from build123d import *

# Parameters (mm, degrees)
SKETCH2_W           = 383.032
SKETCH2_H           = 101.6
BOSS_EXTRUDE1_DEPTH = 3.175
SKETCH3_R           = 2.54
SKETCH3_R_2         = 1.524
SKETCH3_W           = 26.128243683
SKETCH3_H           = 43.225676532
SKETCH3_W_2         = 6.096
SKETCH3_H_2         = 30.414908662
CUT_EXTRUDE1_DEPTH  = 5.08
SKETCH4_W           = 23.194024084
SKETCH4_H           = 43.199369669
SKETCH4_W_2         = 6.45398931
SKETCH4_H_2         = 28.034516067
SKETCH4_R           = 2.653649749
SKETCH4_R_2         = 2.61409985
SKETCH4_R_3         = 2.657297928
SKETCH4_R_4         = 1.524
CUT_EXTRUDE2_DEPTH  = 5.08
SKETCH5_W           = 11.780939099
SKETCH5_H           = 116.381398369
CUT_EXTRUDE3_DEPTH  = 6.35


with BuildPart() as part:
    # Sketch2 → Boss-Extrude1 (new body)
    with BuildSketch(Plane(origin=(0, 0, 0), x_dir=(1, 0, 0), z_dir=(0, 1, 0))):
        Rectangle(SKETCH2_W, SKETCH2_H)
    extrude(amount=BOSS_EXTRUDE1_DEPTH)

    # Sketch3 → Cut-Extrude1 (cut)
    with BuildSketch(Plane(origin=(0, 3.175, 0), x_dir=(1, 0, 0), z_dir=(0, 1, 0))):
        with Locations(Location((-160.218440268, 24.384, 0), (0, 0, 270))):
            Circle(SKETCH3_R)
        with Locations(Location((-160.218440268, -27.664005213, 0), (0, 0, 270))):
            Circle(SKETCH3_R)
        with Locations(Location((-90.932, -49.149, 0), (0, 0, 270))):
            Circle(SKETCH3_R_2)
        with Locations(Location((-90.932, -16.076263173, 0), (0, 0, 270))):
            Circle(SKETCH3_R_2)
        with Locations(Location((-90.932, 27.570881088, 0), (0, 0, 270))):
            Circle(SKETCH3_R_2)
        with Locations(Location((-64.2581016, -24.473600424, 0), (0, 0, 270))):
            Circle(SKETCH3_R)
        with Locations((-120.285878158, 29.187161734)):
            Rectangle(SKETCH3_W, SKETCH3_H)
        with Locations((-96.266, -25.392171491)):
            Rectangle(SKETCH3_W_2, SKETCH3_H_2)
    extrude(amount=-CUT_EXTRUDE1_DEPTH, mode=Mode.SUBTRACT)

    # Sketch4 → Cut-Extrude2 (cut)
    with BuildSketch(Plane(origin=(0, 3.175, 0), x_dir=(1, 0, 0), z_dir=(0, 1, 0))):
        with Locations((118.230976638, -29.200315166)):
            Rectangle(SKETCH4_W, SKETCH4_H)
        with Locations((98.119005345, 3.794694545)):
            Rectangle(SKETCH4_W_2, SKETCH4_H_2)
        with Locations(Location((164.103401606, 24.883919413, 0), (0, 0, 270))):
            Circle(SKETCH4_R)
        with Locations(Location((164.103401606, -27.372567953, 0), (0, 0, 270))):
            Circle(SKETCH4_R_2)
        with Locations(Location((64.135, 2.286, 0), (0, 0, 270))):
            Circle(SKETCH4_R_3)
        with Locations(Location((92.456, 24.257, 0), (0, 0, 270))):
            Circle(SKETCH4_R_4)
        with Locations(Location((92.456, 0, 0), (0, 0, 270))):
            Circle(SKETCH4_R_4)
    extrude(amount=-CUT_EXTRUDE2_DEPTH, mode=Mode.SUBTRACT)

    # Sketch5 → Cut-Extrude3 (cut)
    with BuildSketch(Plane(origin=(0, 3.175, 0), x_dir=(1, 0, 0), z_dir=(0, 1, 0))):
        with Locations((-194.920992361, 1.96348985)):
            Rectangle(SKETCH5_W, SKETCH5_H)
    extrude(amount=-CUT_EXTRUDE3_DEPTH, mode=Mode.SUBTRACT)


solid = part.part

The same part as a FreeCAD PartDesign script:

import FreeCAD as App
import Part
import Sketcher
Q = App.Units.Quantity


def add_polygon(sketch, points):
    """Adds a closed chain of lines whose ends are joined by coincident constraints."""
    first, n = sketch.GeometryCount, len(points)
    for a, b in zip(points, points[1:] + points[:1]):
        sketch.addGeometry(Part.LineSegment(App.Vector(*a, 0), App.Vector(*b, 0)), False)
    for i in range(n):
        sketch.addConstraint(Sketcher.Constraint("Coincident", first + i, 2, first + (i + 1) % n, 1))

doc = App.newDocument("Part")
body = doc.addObject("PartDesign::Body", "Body")

# Sketch on XZ plane
sketch1 = doc.addObject("Sketcher::SketchObject", "Sketch")
body.addObject(sketch1)
sketch1.AttachmentSupport = (doc.XZ_Plane, [""])
sketch1.MapMode = "FlatFace"
add_polygon(sketch1, [(-192, -51), (-192, 51), (192, 51), (192, -51)])  # lines 0-3
sketch1.addConstraint([
    Sketcher.Constraint("Vertical", 0),
    Sketcher.Constraint("Horizontal", 1),
    Sketcher.Constraint("Vertical", 2),
    Sketcher.Constraint("Horizontal", 3),
    Sketcher.Constraint("Symmetric", 0, 2, 2, 2, -1, 1),
    Sketcher.Constraint("DistanceY", 0, 1, 0, 2, Q("4 in")),
    Sketcher.Constraint("DistanceX", 1, 1, 1, 2, Q("15.08 in")),
])
pad1 = doc.addObject("PartDesign::Pad", "Pad")
body.addObject(pad1)
pad1.Profile = sketch1
pad1.Length = Q("0.125 in")
pad1.Reversed = True

# Sketch on XZ plane
sketch2 = doc.addObject("Sketcher::SketchObject", "Sketch001")
body.addObject(sketch2)
sketch2.AttachmentSupport = (doc.XZ_Plane, [""])
sketch2.MapMode = "FlatFace"
sketch2.AttachmentOffset = App.Placement(App.Vector(0, 0, -0.125 * 25.4), App.Rotation())
sketch2.addGeometry(Part.Circle(App.Vector(-160.2, -24.4, 0), App.Vector(0, 0, 1), 2.5), False)  # 0
sketch2.addGeometry(Part.Circle(App.Vector(-160.2, 27.7, 0), App.Vector(0, 0, 1), 2.5), False)  # 1
sketch2.addGeometry(Part.Circle(App.Vector(-90.9, 49.1, 0), App.Vector(0, 0, 1), 1.5), False)  # 2
sketch2.addGeometry(Part.Circle(App.Vector(-90.9, 16.1, 0), App.Vector(0, 0, 1), 1.5), False)  # 3
sketch2.addGeometry(Part.Circle(App.Vector(-90.9, -27.6, 0), App.Vector(0, 0, 1), 1.5), False)  # 4
sketch2.addGeometry(Part.Circle(App.Vector(-64.3, 24.5, 0), App.Vector(0, 0, 1), 2.5), False)  # 5
add_polygon(sketch2, [(-133.3, -50.8), (-133.3, -7.6), (-107.2, -7.6), (-107.2, -50.8)])  # lines 6-9
add_polygon(sketch2, [(-99.3, 10.2), (-99.3, 40.6), (-93.2, 40.6), (-93.2, 10.2)])  # lines 10-13
sketch2.addConstraint([
    Sketcher.Constraint("Vertical", 6),
    Sketcher.Constraint("Horizontal", 7),
    Sketcher.Constraint("Vertical", 8),
    Sketcher.Constraint("Horizontal", 9),
    Sketcher.Constraint("Vertical", 10),
    Sketcher.Constraint("Horizontal", 11),
    Sketcher.Constraint("Vertical", 12),
    Sketcher.Constraint("Horizontal", 13),
    Sketcher.Constraint("Equal", 0, 1),
    Sketcher.Constraint("Equal", 2, 3),
    Sketcher.Constraint("Equal", 3, 4),
    Sketcher.Constraint("Equal", 1, 5),
    Sketcher.Constraint("Vertical", 0, 3, 1, 3),
    Sketcher.Constraint("Vertical", 2, 3, 3, 3),
    Sketcher.Constraint("Vertical", 3, 3, 4, 3),
    Sketcher.Constraint("Diameter", 0, Q("0.2 in")),
    Sketcher.Constraint("Diameter", 2, Q("0.12 in")),
    Sketcher.Constraint("DistanceY", 8, 2, -1, 1, Q("2 in")),
    Sketcher.Constraint("DistanceX", 11, 1, 11, 2, Q("0.24 in")),
    Sketcher.Constraint("DistanceY", 0, 3, -1, 1, Q("0.96 in")),
    Sketcher.Constraint("DistanceX", 2, 3, -1, 1, Q("3.58 in")),
    Sketcher.Constraint("DistanceX", 6, 2, -1, 1, Q("5.25 in")),
    Sketcher.Constraint("DistanceX", 10, 2, -1, 1, Q("3.91 in")),
    Sketcher.Constraint("DistanceY", -1, 1, 2, 3, Q("1.935 in")),
    Sketcher.Constraint("DistanceY", 10, 1, 10, 2, Q("30.414909 mm")),
    Sketcher.Constraint("DistanceX", 5, 3, -1, 1, Q("64.258102 mm")),
    Sketcher.Constraint("DistanceY", -1, 1, 5, 3, Q("24.4736 mm")),
    Sketcher.Constraint("DistanceX", 7, 1, 7, 2, Q("26.128244 mm")),
    Sketcher.Constraint("DistanceY", 6, 1, 6, 2, Q("43.225677 mm")),
    Sketcher.Constraint("DistanceX", 0, 3, -1, 1, Q("160.21844 mm")),
    Sketcher.Constraint("DistanceY", 4, 3, -1, 1, Q("27.570881 mm")),
    Sketcher.Constraint("DistanceY", 6, 2, 1, 3, Q("35.238329 mm")),
    Sketcher.Constraint("DistanceY", 7, 2, 10, 2, Q("48.173949 mm")),
    Sketcher.Constraint("DistanceY", -1, 1, 3, 3, Q("16.076263 mm")),
])
pocket1 = doc.addObject("PartDesign::Pocket", "Pocket")
body.addObject(pocket1)
pocket1.Profile = sketch2
pocket1.Length = Q("0.2 in")
pocket1.Reversed = True

# Sketch on XZ plane
sketch3 = doc.addObject("Sketcher::SketchObject", "Sketch002")
body.addObject(sketch3)
sketch3.AttachmentSupport = (doc.XZ_Plane, [""])
sketch3.MapMode = "FlatFace"
sketch3.AttachmentOffset = App.Placement(App.Vector(0, 0, -0.125 * 25.4), App.Rotation())
add_polygon(sketch3, [(106.6, 7.6), (106.6, 50.8), (129.8, 50.8), (129.8, 7.6)])  # lines 0-3
add_polygon(sketch3, [(94.9, -17.8), (94.9, 10.2), (101.3, 10.2), (101.3, -17.8)])  # lines 4-7
sketch3.addGeometry(Part.Circle(App.Vector(164.1, -24.9, 0), App.Vector(0, 0, 1), 2.7), False)  # 8
sketch3.addGeometry(Part.Circle(App.Vector(164.1, 27.4, 0), App.Vector(0, 0, 1), 2.6), False)  # 9
sketch3.addGeometry(Part.Circle(App.Vector(64.1, -2.3, 0), App.Vector(0, 0, 1), 2.7), False)  # 10
sketch3.addGeometry(Part.Circle(App.Vector(92.5, -24.3, 0), App.Vector(0, 0, 1), 1.5), False)  # 11
sketch3.addGeometry(Part.Circle(App.Vector(92.5, 0, 0), App.Vector(0, 0, 1), 1.5), False)  # 12
sketch3.addConstraint([
    Sketcher.Constraint("Vertical", 0),
    Sketcher.Constraint("Horizontal", 1),
    Sketcher.Constraint("Vertical", 2),
    Sketcher.Constraint("Horizontal", 3),
    Sketcher.Constraint("Vertical", 4),
    Sketcher.Constraint("Horizontal", 5),
    Sketcher.Constraint("Vertical", 6),
    Sketcher.Constraint("Horizontal", 7),
    Sketcher.Constraint("Equal", 11, 12),
    Sketcher.Constraint("PointOnObject", 12, 3, -1),
    Sketcher.Constraint("Vertical", 8, 3, 9, 3),
    Sketcher.Constraint("Vertical", 11, 3, 12, 3),
    Sketcher.Constraint("Diameter", 11, Q("0.12 in")),
    Sketcher.Constraint("DistanceY", -1, 1, 0, 2, Q("2 in")),
    Sketcher.Constraint("Diameter", 8, Q("5.307299 mm")),
    Sketcher.Constraint("Diameter", 9, Q("5.2282 mm")),
    Sketcher.Constraint("DistanceY", 10, 3, -1, 1, Q("0.09 in")),
    Sketcher.Constraint("DistanceX", -1, 1, 11, 3, Q("3.64 in")),
    Sketcher.Constraint("DistanceX", -1, 1, 5, 2, Q("3.99 in")),
    Sketcher.Constraint("DistanceX", -1, 1, 10, 3, Q("2.525 in")),
    Sketcher.Constraint("DistanceY", 11, 3, -1, 1, Q("0.955 in")),
    Sketcher.Constraint("Diameter", 10, Q("5.314596 mm")),
    Sketcher.Constraint("DistanceX", 5, 1, 5, 2, Q("6.453989 mm")),
    Sketcher.Constraint("DistanceY", 0, 1, 0, 2, Q("43.19937 mm")),
    Sketcher.Constraint("DistanceX", -1, 1, 8, 3, Q("164.103402 mm")),
    Sketcher.Constraint("DistanceX", 1, 1, 1, 2, Q("23.194024 mm")),
    Sketcher.Constraint("DistanceY", 4, 1, 4, 2, Q("28.034516 mm")),
    Sketcher.Constraint("DistanceY", 8, 3, -1, 1, Q("24.883919 mm")),
    Sketcher.Constraint("DistanceX", -1, 1, 1, 2, Q("129.827989 mm")),
    Sketcher.Constraint("DistanceY", -1, 1, 9, 3, Q("27.372568 mm")),
    Sketcher.Constraint("DistanceY", -1, 1, 4, 2, Q("10.222563 mm")),
])
pocket2 = doc.addObject("PartDesign::Pocket", "Pocket001")
body.addObject(pocket2)
pocket2.Profile = sketch3
pocket2.Length = Q("0.2 in")
pocket2.Reversed = True

# Sketch on XZ plane
sketch4 = doc.addObject("Sketcher::SketchObject", "Sketch003")
body.addObject(sketch4)
sketch4.AttachmentSupport = (doc.XZ_Plane, [""])
sketch4.MapMode = "FlatFace"
sketch4.AttachmentOffset = App.Placement(App.Vector(0, 0, -0.125 * 25.4), App.Rotation())
add_polygon(sketch4, [(-201, -60), (-201, 56), (-189, 56), (-189, -60)])  # lines 0-3
sketch4.addConstraint([
    Sketcher.Constraint("Vertical", 0),
    Sketcher.Constraint("Horizontal", 1),
    Sketcher.Constraint("Vertical", 2),
    Sketcher.Constraint("Horizontal", 3),
    Sketcher.Constraint("DistanceY", 0, 1, 0, 2, Q("116.381398 mm")),
    Sketcher.Constraint("DistanceX", 1, 1, 1, 2, Q("11.780939 mm")),
    Sketcher.Constraint("DistanceX", 0, 2, -1, 1, Q("200.811462 mm")),
    Sketcher.Constraint("DistanceY", -1, 1, 0, 2, Q("56.227209 mm")),
])
pocket3 = doc.addObject("PartDesign::Pocket", "Pocket002")
body.addObject(pocket3)
pocket3.Profile = sketch4
pocket3.Length = Q("0.25 in")
pocket3.Reversed = True

doc.recompute()
